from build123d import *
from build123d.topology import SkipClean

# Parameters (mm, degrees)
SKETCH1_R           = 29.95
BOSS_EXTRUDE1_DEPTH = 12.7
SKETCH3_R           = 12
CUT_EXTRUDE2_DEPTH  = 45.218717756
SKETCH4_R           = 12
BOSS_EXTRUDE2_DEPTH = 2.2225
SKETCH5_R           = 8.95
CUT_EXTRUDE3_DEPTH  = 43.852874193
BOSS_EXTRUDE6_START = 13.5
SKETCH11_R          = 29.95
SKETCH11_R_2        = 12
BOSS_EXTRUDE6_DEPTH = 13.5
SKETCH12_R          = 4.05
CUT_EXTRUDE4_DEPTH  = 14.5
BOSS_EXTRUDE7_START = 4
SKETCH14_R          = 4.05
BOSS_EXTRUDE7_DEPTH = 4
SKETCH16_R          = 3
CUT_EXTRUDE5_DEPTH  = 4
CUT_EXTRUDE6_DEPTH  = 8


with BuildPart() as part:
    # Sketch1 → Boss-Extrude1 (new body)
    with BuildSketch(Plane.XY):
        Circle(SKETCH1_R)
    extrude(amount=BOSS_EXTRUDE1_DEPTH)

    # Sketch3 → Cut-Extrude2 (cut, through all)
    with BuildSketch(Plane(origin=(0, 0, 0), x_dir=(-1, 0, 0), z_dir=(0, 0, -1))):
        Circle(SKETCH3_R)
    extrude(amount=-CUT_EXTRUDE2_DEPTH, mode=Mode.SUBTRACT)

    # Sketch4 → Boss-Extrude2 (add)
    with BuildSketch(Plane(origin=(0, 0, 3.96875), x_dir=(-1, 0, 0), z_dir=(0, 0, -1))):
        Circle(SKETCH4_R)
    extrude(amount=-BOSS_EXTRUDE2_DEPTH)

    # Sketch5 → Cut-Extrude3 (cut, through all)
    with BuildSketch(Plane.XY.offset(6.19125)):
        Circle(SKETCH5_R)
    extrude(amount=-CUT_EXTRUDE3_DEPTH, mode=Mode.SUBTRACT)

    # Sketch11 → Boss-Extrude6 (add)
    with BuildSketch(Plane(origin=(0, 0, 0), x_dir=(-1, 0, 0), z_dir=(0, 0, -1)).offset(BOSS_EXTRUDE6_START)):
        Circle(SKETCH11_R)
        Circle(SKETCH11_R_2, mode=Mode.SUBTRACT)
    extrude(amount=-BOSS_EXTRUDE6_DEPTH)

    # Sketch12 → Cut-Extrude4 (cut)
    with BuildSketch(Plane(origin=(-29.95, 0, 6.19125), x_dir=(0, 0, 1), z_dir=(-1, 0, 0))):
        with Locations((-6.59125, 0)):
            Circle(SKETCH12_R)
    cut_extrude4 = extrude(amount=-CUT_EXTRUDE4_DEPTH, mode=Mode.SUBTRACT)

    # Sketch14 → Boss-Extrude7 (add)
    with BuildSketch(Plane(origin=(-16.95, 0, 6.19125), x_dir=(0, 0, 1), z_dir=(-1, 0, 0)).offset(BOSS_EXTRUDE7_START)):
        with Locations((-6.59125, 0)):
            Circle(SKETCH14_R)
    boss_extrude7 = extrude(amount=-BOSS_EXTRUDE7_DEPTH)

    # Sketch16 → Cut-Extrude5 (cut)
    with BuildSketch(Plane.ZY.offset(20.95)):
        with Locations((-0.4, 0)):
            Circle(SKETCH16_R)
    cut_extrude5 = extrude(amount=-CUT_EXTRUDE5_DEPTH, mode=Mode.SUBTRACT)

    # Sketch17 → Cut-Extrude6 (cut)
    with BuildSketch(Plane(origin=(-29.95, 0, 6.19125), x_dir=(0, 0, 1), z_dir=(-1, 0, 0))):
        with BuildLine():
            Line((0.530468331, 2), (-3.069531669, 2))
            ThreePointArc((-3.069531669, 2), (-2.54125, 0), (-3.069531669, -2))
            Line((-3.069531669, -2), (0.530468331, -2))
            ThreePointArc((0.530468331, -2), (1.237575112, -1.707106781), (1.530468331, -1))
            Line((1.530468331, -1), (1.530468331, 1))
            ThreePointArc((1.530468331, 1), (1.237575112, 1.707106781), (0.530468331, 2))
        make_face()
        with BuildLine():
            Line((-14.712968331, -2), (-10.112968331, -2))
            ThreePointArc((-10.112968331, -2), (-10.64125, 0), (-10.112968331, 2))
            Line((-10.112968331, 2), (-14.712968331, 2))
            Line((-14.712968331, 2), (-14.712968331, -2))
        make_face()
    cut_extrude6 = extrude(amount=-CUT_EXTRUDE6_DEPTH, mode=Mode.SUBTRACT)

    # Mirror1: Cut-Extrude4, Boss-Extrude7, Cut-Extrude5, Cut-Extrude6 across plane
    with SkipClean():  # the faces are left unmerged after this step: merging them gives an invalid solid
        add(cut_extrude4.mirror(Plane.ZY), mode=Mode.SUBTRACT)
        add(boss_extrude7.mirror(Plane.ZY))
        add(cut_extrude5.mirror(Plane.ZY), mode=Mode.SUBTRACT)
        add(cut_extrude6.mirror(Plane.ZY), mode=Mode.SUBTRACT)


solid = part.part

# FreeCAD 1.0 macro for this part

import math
import FreeCAD as App
import Part
import Sketcher
from FreeCAD import Vector

doc = App.newDocument("Part")
body = doc.addObject("PartDesign::Body", "Body")

sketch1 = doc.addObject("Sketcher::SketchObject", "Sketch")
body.addObject(sketch1)
sketch1.AttachmentSupport = (doc.XY_Plane, [""])
sketch1.MapMode = "FlatFace"
sketch1.addGeometry(Part.Circle(Vector(0, 0, 0), Vector(0, 0, 1), 30), False)
sketch1.addConstraint(Sketcher.Constraint("Coincident", 0, 3, -1, 1))
sketch1.addConstraint(Sketcher.Constraint("Diameter", 0, 59.9))
pad1 = doc.addObject("PartDesign::Pad", "Pad")
body.addObject(pad1)
pad1.Profile = sketch1
pad1.Length = 12.7

sketch2 = doc.addObject("Sketcher::SketchObject", "Sketch001")
body.addObject(sketch2)
sketch2.AttachmentSupport = (doc.XY_Plane, [""])
sketch2.MapMode = "FlatFace"
sketch2.addGeometry(Part.Circle(Vector(0, 0, 0), Vector(0, 0, 1), 12), False)
sketch2.addConstraint(Sketcher.Constraint("Coincident", 0, 3, -1, 1))
sketch2.addConstraint(Sketcher.Constraint("Diameter", 0, 24.0))
pocket1 = doc.addObject("PartDesign::Pocket", "Pocket")
body.addObject(pocket1)
pocket1.Profile = sketch2
pocket1.Type = "ThroughAll"
pocket1.Reversed = True

sketch3 = doc.addObject("Sketcher::SketchObject", "Sketch002")
body.addObject(sketch3)
sketch3.AttachmentSupport = (doc.XY_Plane, [""])
sketch3.MapMode = "FlatFace"
sketch3.AttachmentOffset = App.Placement(Vector(0, 0, 3.96875), App.Rotation())
sketch3.addGeometry(Part.Circle(Vector(0, 0, 0), Vector(0, 0, 1), 12), False)
sketch3.addConstraint(Sketcher.Constraint("Coincident", 0, 3, -1, 1))
sketch3.addConstraint(Sketcher.Constraint("Diameter", 0, 24.0))
pad2 = doc.addObject("PartDesign::Pad", "Pad001")
body.addObject(pad2)
pad2.Profile = sketch3
pad2.Length = 2.2225

sketch4 = doc.addObject("Sketcher::SketchObject", "Sketch003")
body.addObject(sketch4)
sketch4.AttachmentSupport = (doc.XY_Plane, [""])
sketch4.MapMode = "FlatFace"
sketch4.AttachmentOffset = App.Placement(Vector(0, 0, 6.19125), App.Rotation())
sketch4.addGeometry(Part.Circle(Vector(0, 0, 0), Vector(0, 0, 1), 9), False)
sketch4.addConstraint(Sketcher.Constraint("Coincident", 0, 3, -1, 1))
sketch4.addConstraint(Sketcher.Constraint("Diameter", 0, 17.9))
pocket2 = doc.addObject("PartDesign::Pocket", "Pocket001")
body.addObject(pocket2)
pocket2.Profile = sketch4
pocket2.Type = "ThroughAll"

sketch5 = doc.addObject("Sketcher::SketchObject", "Sketch004")
body.addObject(sketch5)
sketch5.AttachmentSupport = (doc.XY_Plane, [""])
sketch5.MapMode = "FlatFace"
sketch5.AttachmentOffset = App.Placement(Vector(0, 0, -13.5), App.Rotation())
sketch5.addGeometry(Part.Circle(Vector(0, 0, 0), Vector(0, 0, 1), 30), False)
sketch5.addGeometry(Part.Circle(Vector(0, 0, 0), Vector(0, 0, 1), 12), False)
sketch5.addConstraint(Sketcher.Constraint("Coincident", 0, 3, -1, 1))
sketch5.addConstraint(Sketcher.Constraint("Coincident", 1, 3, -1, 1))
sketch5.addConstraint(Sketcher.Constraint("Diameter", 1, 24.0))
sketch5.addConstraint(Sketcher.Constraint("Diameter", 0, 59.9))
pad3 = doc.addObject("PartDesign::Pad", "Pad002")
body.addObject(pad3)
pad3.Profile = sketch5
pad3.Length = 13.5

sketch6 = doc.addObject("Sketcher::SketchObject", "Sketch005")
body.addObject(sketch6)
sketch6.AttachmentSupport = (doc.YZ_Plane, [""])
sketch6.MapMode = "FlatFace"
sketch6.AttachmentOffset = App.Placement(Vector(0, 0, -29.95), App.Rotation())
sketch6.addGeometry(Part.Circle(Vector(0, -0.4, 0), Vector(0, 0, 1), 4), False)
sketch6.addConstraint(Sketcher.Constraint("PointOnObject", 0, 3, -2))
sketch6.addConstraint(Sketcher.Constraint("Diameter", 0, 8.1))
sketch6.addConstraint(Sketcher.Constraint("DistanceY", 0, 3, -1, 1, 0.4))
pocket3 = doc.addObject("PartDesign::Pocket", "Pocket002")
body.addObject(pocket3)
pocket3.Profile = sketch6
pocket3.Length = 14.5
pocket3.Reversed = True

sketch7 = doc.addObject("Sketcher::SketchObject", "Sketch006")
body.addObject(sketch7)
sketch7.AttachmentSupport = (doc.YZ_Plane, [""])
sketch7.MapMode = "FlatFace"
sketch7.AttachmentOffset = App.Placement(Vector(0, 0, -20.95), App.Rotation())
sketch7.addGeometry(Part.Circle(Vector(0, -0.4, 0), Vector(0, 0, 1), 4), False)
sketch7.addConstraint(Sketcher.Constraint("PointOnObject", 0, 3, -2))
sketch7.addConstraint(Sketcher.Constraint("Diameter", 0, 8.1))
sketch7.addConstraint(Sketcher.Constraint("DistanceY", 0, 3, -1, 1, 0.4))
pad4 = doc.addObject("PartDesign::Pad", "Pad003")
body.addObject(pad4)
pad4.Profile = sketch7
pad4.Length = 4

sketch8 = doc.addObject("Sketcher::SketchObject", "Sketch007")
body.addObject(sketch8)
sketch8.AttachmentSupport = (doc.YZ_Plane, [""])
sketch8.MapMode = "FlatFace"
sketch8.AttachmentOffset = App.Placement(Vector(0, 0, -20.95), App.Rotation())
sketch8.addGeometry(Part.Circle(Vector(0, -0.4, 0), Vector(0, 0, 1), 3), False)
sketch8.addConstraint(Sketcher.Constraint("PointOnObject", 0, 3, -2))
sketch8.addConstraint(Sketcher.Constraint("Diameter", 0, 6.0))
sketch8.addConstraint(Sketcher.Constraint("DistanceY", 0, 3, -1, 1, 0.4))
pocket4 = doc.addObject("PartDesign::Pocket", "Pocket003")
body.addObject(pocket4)
pocket4.Profile = sketch8
pocket4.Length = 4
pocket4.Reversed = True

sketch9 = doc.addObject("Sketcher::SketchObject", "Sketch008")
body.addObject(sketch9)
sketch9.AttachmentSupport = (doc.YZ_Plane, [""])
sketch9.MapMode = "FlatFace"
sketch9.AttachmentOffset = App.Placement(Vector(0, 0, -29.95), App.Rotation())
sketch9.addGeometry(Part.LineSegment(Vector(2, 6.7, 0), Vector(2, 3.1, 0)), False)
sketch9.addGeometry(Part.ArcOfCircle(Part.Circle(Vector(0, -0.4, 0), Vector(0, 0, 1), 4.1), math.radians(60), math.radians(120)), False)
sketch9.addGeometry(Part.LineSegment(Vector(-2, 3.1, 0), Vector(-2, 6.7, 0)), False)
sketch9.addGeometry(Part.ArcOfCircle(Part.Circle(Vector(-1, 6.7, 0), Vector(0, 0, 1), 1), math.radians(90), math.radians(180)), False)
sketch9.addGeometry(Part.LineSegment(Vector(-1, 7.7, 0), Vector(1, 7.7, 0)), False)
sketch9.addGeometry(Part.ArcOfCircle(Part.Circle(Vector(1, 6.7, 0), Vector(0, 0, 1), 1), math.radians(0), math.radians(90)), False)
sketch9.addGeometry(Part.LineSegment(Vector(-2, -8.5, 0), Vector(-2, -3.9, 0)), False)
sketch9.addGeometry(Part.ArcOfCircle(Part.Circle(Vector(0, -0.4, 0), Vector(0, 0, 1), 4.1), math.radians(-120), math.radians(-60)), False)
sketch9.addGeometry(Part.LineSegment(Vector(2, -3.9, 0), Vector(2, -8.5, 0)), False)
sketch9.addGeometry(Part.LineSegment(Vector(2, -8.5, 0), Vector(-2, -8.5, 0)), False)
sketch9.addConstraint(Sketcher.Constraint("Coincident", 0, 2, 1, 1))
sketch9.addConstraint(Sketcher.Constraint("Coincident", 1, 2, 2, 1))
sketch9.addConstraint(Sketcher.Constraint("Tangent", 2, 2, 3, 2))
sketch9.addConstraint(Sketcher.Constraint("Tangent", 3, 1, 4, 1))
sketch9.addConstraint(Sketcher.Constraint("Tangent", 4, 2, 5, 2))
sketch9.addConstraint(Sketcher.Constraint("Tangent", 5, 1, 0, 1))
sketch9.addConstraint(Sketcher.Constraint("Coincident", 6, 2, 7, 1))
sketch9.addConstraint(Sketcher.Constraint("Coincident", 7, 2, 8, 1))
sketch9.addConstraint(Sketcher.Constraint("Coincident", 8, 2, 9, 1))
sketch9.addConstraint(Sketcher.Constraint("Coincident", 9, 2, 6, 1))
sketch9.addConstraint(Sketcher.Constraint("Vertical", 0))
sketch9.addConstraint(Sketcher.Constraint("Vertical", 2))
sketch9.addConstraint(Sketcher.Constraint("Horizontal", 4))
sketch9.addConstraint(Sketcher.Constraint("Vertical", 6))
sketch9.addConstraint(Sketcher.Constraint("Vertical", 8))
sketch9.addConstraint(Sketcher.Constraint("Horizontal", 9))
sketch9.addConstraint(Sketcher.Constraint("Coincident", 7, 3, 1, 3))
sketch9.addConstraint(Sketcher.Constraint("Equal", 3, 5))
sketch9.addConstraint(Sketcher.Constraint("Equal", 1, 7))
sketch9.addConstraint(Sketcher.Constraint("Symmetric", 0, 2, 1, 2, -2))
sketch9.addConstraint(Sketcher.Constraint("Horizontal", 6, 2, 7, 2))
sketch9.addConstraint(Sketcher.Constraint("Vertical", 2, 2, 6, 2))
sketch9.addConstraint(Sketcher.Constraint("Radius", 3, 1.0))
sketch9.addConstraint(Sketcher.Constraint("DistanceX", 4, 1, 4, 2, 2.0))
sketch9.addConstraint(Sketcher.Constraint("Radius", 1, 4.05))
sketch9.addConstraint(Sketcher.Constraint("DistanceY", 0, 2, 0, 1, 3.6))
sketch9.addConstraint(Sketcher.Constraint("DistanceY", 6, 1, 6, 2, 4.6))
sketch9.addConstraint(Sketcher.Constraint("DistanceY", 1, 3, -1, 1, 0.4))
pocket5 = doc.addObject("PartDesign::Pocket", "Pocket004")
body.addObject(pocket5)
pocket5.Profile = sketch9
pocket5.Length = 8
pocket5.Reversed = True
doc.recompute()

mirrored = doc.addObject("PartDesign::Mirrored", "Mirrored")
body.addObject(mirrored)
mirrored.Originals = [pocket3, pad4, pocket4, pocket5]
mirrored.MirrorPlane = (doc.YZ_Plane, [""])
body.Tip = mirrored

doc.recompute()
